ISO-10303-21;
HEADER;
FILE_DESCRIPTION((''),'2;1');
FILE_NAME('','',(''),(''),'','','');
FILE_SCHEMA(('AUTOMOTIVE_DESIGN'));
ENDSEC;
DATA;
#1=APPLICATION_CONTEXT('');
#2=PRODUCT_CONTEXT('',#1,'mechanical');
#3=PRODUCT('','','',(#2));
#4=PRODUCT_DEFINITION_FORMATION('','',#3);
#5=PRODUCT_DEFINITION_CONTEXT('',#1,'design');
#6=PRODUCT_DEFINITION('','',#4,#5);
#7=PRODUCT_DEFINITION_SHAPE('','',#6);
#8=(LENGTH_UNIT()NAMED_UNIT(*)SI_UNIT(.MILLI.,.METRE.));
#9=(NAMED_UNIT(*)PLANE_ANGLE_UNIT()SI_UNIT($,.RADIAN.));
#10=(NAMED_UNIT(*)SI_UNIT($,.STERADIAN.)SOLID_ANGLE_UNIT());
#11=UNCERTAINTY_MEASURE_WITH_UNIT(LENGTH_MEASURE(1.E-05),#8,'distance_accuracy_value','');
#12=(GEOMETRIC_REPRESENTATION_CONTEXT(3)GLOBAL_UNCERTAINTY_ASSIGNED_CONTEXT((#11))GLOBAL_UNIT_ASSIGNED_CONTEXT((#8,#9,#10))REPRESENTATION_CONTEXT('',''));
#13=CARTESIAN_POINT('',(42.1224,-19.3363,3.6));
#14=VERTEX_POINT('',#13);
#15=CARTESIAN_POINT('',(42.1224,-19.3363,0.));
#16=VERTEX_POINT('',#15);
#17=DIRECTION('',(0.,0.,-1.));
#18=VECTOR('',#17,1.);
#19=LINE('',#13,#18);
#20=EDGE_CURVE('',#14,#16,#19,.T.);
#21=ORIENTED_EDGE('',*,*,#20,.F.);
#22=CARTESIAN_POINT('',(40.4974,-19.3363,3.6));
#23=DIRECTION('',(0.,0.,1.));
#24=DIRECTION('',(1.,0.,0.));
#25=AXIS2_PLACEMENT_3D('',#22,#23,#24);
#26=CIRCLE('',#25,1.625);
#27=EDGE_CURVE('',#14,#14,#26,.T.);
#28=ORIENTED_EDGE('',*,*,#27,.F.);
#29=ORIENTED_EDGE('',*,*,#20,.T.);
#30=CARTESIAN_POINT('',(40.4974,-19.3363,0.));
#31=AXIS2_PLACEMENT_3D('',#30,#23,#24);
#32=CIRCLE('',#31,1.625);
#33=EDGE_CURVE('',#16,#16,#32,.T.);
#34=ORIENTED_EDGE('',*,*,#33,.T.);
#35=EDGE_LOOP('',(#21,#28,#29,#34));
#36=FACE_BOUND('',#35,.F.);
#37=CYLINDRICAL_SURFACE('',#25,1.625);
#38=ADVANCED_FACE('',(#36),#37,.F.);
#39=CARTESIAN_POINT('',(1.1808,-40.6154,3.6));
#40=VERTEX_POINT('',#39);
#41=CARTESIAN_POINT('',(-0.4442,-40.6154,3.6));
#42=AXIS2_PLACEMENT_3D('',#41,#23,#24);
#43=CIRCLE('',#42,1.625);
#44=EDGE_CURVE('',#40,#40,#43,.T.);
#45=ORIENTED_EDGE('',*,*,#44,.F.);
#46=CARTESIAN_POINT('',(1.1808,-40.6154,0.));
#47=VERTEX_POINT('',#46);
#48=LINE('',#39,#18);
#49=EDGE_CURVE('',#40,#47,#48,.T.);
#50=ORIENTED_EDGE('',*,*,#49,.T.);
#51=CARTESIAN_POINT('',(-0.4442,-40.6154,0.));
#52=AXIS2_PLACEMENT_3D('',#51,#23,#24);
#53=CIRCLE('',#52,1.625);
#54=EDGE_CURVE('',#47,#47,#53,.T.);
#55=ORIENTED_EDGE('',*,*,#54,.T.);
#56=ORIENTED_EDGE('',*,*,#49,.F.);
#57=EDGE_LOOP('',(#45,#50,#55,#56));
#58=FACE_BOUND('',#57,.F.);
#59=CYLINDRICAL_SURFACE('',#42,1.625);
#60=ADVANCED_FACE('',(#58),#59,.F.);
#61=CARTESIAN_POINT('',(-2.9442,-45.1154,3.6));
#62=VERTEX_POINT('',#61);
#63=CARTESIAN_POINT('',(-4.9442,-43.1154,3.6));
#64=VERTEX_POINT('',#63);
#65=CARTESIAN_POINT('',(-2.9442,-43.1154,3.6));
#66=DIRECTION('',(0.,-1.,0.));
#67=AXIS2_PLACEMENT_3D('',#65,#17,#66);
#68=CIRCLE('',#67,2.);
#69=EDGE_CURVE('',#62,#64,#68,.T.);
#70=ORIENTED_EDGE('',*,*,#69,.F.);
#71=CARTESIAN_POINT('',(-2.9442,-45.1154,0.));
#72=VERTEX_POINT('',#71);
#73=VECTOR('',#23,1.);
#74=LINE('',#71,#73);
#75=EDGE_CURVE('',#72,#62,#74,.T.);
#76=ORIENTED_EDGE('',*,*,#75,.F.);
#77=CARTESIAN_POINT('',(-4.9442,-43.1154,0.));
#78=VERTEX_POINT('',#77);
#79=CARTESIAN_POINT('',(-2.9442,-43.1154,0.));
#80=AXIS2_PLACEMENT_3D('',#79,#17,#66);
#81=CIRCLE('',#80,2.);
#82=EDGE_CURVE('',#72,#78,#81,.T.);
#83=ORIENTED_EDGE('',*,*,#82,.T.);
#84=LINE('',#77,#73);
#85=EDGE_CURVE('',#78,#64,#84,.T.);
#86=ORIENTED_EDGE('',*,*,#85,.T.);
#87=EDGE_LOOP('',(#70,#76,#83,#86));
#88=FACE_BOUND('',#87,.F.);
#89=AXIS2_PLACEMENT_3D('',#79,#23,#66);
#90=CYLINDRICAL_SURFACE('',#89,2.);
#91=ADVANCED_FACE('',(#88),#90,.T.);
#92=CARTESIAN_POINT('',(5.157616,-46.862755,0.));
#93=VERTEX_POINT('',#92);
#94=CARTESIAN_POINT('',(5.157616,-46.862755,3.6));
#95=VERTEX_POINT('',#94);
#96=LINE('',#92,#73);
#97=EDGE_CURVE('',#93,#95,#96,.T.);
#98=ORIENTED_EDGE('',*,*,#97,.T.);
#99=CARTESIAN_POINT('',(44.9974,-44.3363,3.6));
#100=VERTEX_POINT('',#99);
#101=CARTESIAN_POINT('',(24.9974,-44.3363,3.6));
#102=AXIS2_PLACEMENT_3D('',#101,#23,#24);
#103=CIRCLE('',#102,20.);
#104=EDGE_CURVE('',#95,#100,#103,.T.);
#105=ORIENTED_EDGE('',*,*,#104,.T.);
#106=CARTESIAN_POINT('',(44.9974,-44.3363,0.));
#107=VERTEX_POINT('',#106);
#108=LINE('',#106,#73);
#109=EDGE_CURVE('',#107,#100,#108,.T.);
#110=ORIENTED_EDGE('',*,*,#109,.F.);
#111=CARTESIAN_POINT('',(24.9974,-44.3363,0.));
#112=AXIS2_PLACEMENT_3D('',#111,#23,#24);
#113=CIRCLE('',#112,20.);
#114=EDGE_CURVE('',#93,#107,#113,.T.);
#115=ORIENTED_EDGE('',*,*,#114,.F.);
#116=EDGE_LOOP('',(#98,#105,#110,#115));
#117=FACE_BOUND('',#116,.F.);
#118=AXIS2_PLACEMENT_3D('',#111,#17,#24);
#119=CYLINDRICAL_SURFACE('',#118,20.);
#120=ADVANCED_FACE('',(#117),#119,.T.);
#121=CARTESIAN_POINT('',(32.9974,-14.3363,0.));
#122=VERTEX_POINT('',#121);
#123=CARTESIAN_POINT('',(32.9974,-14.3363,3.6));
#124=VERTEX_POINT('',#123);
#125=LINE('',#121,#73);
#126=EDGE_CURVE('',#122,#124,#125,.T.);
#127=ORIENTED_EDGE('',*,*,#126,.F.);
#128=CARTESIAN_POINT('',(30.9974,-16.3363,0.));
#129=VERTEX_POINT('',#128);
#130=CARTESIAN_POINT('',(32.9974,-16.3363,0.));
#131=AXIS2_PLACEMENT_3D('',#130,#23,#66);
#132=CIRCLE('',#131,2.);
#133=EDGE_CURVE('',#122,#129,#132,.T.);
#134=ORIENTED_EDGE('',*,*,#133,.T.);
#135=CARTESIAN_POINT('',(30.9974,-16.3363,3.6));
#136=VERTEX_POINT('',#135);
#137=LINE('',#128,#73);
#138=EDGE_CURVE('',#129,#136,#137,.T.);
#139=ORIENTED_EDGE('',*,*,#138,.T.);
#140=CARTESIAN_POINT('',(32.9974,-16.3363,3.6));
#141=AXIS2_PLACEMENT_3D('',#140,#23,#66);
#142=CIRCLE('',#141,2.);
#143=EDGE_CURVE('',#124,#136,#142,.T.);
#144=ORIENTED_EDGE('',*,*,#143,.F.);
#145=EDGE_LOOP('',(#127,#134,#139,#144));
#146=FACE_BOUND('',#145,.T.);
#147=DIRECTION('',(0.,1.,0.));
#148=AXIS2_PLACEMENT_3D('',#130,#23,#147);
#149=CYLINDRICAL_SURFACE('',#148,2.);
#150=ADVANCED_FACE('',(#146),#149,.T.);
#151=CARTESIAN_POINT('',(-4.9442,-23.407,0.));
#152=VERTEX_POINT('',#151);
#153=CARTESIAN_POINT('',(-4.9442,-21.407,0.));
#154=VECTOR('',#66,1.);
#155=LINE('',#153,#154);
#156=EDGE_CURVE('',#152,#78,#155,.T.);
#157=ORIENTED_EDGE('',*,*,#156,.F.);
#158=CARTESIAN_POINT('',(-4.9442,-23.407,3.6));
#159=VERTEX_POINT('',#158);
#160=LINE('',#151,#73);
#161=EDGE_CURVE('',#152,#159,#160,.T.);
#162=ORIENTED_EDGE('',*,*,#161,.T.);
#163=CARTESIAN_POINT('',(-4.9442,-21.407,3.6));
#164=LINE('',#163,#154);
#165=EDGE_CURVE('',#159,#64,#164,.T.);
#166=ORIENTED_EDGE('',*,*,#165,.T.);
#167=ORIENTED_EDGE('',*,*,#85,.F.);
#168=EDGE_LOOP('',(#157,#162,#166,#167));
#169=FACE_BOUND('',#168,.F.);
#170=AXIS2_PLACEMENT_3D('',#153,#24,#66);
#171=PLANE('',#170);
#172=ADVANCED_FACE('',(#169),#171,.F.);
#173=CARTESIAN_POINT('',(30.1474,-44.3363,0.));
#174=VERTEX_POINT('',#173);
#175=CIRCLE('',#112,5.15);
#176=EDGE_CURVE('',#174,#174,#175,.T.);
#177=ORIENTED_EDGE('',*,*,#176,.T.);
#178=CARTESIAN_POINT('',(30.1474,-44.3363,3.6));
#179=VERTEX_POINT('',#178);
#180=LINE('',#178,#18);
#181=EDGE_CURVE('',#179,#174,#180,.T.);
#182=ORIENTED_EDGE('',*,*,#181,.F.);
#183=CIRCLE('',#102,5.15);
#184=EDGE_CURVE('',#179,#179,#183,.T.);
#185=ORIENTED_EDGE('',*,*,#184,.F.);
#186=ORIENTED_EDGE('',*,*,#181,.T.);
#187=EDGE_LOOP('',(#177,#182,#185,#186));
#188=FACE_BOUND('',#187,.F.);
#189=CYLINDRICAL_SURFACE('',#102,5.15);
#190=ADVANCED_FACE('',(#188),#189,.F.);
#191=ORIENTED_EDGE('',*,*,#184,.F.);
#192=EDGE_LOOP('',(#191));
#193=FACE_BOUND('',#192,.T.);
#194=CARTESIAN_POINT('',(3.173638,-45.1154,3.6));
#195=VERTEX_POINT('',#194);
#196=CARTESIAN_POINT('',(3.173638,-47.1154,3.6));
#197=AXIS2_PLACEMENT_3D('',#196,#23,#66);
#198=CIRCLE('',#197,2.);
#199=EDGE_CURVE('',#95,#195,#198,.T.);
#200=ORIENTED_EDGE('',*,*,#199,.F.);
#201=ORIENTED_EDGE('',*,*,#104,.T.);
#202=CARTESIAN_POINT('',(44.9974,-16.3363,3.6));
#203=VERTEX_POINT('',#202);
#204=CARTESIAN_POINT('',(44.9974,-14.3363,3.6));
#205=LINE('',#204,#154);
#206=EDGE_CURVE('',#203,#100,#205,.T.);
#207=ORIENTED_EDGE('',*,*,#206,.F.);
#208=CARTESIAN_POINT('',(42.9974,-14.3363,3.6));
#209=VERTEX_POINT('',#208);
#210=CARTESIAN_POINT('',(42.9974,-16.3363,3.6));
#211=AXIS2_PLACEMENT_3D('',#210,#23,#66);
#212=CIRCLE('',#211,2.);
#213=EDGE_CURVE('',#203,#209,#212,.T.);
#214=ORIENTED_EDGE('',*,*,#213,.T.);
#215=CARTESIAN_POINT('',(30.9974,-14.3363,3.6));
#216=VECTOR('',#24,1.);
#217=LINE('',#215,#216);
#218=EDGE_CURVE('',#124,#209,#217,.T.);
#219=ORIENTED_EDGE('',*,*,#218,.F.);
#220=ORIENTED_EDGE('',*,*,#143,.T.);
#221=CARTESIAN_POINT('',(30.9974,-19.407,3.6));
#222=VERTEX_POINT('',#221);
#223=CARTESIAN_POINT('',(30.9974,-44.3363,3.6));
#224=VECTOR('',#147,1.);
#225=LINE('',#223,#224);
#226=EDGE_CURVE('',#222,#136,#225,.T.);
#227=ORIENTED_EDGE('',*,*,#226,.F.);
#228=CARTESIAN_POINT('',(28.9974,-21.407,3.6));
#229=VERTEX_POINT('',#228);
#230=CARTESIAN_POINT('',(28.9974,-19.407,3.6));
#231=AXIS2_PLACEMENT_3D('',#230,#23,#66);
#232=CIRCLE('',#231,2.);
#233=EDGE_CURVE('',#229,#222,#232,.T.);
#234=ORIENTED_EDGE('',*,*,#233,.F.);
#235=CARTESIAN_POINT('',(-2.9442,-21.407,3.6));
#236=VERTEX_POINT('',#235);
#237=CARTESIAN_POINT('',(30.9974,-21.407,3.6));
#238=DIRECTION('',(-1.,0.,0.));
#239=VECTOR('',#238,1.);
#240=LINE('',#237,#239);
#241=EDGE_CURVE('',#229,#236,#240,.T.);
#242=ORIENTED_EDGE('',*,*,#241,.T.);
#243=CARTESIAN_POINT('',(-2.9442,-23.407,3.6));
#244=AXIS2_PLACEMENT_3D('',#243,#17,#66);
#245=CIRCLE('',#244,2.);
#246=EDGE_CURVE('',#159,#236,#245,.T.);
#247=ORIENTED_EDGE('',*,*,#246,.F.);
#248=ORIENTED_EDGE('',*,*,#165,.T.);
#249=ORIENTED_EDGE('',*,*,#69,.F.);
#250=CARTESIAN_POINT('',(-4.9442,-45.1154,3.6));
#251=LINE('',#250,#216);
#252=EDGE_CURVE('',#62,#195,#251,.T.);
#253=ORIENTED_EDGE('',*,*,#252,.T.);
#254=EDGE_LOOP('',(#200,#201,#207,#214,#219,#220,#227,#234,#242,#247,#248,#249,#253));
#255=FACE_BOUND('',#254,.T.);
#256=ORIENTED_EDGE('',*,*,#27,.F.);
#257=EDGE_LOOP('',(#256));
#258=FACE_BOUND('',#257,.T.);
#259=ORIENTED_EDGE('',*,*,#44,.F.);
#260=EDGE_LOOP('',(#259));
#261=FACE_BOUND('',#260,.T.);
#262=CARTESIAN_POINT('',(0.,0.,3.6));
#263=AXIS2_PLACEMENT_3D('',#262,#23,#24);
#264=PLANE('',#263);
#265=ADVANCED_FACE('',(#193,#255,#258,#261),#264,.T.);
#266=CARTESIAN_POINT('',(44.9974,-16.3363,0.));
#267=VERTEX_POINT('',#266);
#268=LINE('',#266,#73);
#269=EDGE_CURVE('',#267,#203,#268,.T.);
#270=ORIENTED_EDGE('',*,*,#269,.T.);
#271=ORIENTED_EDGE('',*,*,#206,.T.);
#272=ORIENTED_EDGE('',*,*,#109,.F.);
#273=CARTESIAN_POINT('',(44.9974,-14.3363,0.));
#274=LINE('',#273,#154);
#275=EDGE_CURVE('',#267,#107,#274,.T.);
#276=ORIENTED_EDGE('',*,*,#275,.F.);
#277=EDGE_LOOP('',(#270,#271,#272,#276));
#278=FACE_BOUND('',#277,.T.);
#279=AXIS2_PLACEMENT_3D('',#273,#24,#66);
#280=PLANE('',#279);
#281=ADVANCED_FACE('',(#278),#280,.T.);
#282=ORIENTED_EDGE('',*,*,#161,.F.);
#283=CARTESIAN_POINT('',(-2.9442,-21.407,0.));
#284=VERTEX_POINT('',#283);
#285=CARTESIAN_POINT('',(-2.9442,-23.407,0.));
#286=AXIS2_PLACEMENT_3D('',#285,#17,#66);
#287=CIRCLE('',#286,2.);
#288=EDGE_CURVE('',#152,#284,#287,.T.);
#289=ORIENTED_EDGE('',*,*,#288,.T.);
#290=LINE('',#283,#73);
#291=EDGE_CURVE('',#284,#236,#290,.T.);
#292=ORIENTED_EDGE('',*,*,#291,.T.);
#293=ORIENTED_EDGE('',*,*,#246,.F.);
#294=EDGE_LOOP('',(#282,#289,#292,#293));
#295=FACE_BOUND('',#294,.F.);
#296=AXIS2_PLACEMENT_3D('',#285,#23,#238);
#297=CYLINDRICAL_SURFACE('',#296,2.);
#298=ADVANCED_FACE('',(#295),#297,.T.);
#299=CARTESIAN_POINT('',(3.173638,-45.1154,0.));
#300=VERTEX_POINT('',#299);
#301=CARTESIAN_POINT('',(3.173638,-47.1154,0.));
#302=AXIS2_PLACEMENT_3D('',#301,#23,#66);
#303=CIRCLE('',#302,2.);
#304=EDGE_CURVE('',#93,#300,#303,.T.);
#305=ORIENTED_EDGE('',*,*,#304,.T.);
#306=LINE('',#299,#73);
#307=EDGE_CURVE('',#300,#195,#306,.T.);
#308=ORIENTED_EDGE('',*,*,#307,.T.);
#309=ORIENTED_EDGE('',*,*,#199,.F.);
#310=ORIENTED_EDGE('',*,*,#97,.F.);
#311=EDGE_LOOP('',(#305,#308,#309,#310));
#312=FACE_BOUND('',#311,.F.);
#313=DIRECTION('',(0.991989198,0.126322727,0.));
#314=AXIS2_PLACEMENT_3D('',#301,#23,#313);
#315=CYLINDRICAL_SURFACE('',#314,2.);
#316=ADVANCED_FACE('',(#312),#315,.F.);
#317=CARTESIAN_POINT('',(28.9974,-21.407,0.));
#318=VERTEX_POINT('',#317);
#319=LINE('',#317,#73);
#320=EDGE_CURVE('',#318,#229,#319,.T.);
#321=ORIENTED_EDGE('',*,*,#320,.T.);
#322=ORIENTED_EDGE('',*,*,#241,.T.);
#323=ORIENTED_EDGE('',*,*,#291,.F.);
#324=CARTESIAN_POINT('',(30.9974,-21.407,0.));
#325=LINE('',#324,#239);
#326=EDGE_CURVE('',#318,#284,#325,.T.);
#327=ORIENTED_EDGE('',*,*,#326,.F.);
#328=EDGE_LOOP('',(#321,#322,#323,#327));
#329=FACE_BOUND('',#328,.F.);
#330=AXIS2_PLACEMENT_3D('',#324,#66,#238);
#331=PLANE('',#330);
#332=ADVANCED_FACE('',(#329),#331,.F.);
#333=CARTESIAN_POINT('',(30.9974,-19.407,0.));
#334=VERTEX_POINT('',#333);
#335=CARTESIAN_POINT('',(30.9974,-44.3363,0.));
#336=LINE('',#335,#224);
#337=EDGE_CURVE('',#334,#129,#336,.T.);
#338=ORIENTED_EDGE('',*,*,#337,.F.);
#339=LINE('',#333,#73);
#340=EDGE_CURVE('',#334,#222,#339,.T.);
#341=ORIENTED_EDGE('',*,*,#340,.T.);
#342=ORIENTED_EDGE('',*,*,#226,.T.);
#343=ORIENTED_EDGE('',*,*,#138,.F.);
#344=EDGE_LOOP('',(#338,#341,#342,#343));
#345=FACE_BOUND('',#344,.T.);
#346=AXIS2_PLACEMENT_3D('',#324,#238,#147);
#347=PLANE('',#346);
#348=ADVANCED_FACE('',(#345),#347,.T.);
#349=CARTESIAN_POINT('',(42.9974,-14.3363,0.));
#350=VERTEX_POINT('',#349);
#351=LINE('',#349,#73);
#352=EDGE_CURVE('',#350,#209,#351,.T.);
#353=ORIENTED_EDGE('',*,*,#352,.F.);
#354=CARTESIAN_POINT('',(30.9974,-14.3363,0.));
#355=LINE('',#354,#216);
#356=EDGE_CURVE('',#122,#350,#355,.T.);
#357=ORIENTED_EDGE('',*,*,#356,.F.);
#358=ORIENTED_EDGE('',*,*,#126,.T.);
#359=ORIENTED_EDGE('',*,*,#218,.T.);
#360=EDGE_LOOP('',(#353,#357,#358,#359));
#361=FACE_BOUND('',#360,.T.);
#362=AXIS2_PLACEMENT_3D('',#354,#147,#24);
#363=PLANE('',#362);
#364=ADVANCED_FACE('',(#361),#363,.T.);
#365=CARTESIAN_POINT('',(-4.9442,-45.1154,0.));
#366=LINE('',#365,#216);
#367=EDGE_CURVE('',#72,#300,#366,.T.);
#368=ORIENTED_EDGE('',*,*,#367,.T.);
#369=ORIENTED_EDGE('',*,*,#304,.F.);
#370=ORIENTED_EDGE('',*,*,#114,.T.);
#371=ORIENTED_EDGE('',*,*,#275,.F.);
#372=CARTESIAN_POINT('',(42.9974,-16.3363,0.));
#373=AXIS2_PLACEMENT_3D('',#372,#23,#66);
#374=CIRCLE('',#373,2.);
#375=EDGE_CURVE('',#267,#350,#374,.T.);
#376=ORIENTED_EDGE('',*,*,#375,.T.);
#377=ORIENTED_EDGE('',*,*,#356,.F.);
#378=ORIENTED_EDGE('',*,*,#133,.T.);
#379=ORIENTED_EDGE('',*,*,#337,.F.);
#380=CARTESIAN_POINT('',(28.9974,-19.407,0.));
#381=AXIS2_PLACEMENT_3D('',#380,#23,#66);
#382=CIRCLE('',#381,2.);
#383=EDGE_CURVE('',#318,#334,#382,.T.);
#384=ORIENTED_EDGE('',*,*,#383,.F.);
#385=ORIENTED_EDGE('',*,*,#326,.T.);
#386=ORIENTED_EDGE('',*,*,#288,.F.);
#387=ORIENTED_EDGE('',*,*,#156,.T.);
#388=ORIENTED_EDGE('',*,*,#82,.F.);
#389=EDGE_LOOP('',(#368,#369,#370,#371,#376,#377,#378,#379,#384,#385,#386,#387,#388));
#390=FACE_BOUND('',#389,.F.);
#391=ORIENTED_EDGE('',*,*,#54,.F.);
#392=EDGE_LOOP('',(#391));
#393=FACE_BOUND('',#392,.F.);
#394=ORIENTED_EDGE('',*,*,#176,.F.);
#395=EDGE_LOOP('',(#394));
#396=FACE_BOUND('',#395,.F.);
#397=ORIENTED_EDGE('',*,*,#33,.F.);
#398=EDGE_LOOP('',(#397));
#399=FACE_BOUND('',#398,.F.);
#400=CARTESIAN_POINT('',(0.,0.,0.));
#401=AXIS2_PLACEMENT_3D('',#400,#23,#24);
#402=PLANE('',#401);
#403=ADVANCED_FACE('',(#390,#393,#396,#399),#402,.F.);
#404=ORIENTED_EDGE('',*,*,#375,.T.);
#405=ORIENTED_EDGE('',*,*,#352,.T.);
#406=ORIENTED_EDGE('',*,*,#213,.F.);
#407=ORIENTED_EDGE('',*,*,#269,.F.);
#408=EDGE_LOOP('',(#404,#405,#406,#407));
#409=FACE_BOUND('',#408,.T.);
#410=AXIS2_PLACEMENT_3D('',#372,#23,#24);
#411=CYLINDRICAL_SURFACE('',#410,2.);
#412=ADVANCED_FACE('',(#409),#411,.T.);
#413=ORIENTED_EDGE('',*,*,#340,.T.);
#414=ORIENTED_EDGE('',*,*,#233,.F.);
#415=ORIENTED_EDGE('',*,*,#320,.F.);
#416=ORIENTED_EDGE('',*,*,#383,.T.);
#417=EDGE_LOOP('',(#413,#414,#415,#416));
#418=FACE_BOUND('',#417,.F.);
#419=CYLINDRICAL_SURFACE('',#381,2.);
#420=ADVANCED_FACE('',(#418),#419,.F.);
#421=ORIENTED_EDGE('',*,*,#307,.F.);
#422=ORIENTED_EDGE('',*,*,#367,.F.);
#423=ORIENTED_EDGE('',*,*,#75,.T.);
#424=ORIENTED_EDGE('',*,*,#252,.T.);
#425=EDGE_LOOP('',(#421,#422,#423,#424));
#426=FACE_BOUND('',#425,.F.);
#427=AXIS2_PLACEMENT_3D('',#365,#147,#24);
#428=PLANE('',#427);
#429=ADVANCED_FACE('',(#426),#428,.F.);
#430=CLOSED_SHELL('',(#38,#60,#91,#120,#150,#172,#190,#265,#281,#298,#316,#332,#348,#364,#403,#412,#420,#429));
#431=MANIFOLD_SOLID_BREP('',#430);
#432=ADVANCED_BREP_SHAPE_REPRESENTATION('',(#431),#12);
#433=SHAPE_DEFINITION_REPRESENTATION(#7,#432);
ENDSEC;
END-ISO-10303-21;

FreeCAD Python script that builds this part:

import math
import FreeCAD as App
import Part
import Sketcher
Q = App.Units.Quantity


def edges_at(feature, points):
    """Names of the edges that pass closest to the given points."""
    edges = feature.Shape.Edges
    near = lambda p: min(range(len(edges)), key=lambda i: edges[i].distToShape(Part.Vertex(*p))[0])
    return sorted({f"Edge{near(p) + 1}" for p in points})

doc = App.newDocument("Part")
params = doc.addObject("Spreadsheet::Sheet", "Params")
for row, (alias, value) in enumerate([
    ("sketch1_radius", "20 mm"),
    ("sketch1_width", "14 mm"),
    ("sketch1_height", "30 mm"),
    ("pad1_length", "3.6 mm"),
    ("sketch2_diameter", "10.3 mm"),
    ("sketch2_diameter2", "3.25 mm"),
    ("pocket1_length", "20 mm"),
    ("fillet_radius", "2 mm"),
], start=1):
    params.set(f"A{row}", alias)
    params.set(f"B{row}", "=" + value)
    params.setAlias(f"B{row}", alias)

body = doc.addObject("PartDesign::Body", "Body")

sketch1 = body.newObject("Sketcher::SketchObject", "Sketch")
sketch1.AttachmentSupport = (doc.getObject("XY_Plane"), [""])
sketch1.MapMode = "FlatFace"
sketch1.addGeometry(Part.ArcOfCircle(Part.Circle(App.Vector(25, -44, 0), App.Vector(0, 0, 1), 20), math.radians(-178), math.radians(0)), False)
sketch1.addGeometry(Part.LineSegment(App.Vector(45, -44, 0), App.Vector(45, -14, 0)), False)
sketch1.addGeometry(Part.LineSegment(App.Vector(45, -14, 0), App.Vector(31, -14, 0)), False)
sketch1.addGeometry(Part.LineSegment(App.Vector(31, -14, 0), App.Vector(31, -21, 0)), False)
sketch1.addGeometry(Part.LineSegment(App.Vector(31, -21, 0), App.Vector(-5, -21, 0)), False)
sketch1.addGeometry(Part.LineSegment(App.Vector(-5, -21, 0), App.Vector(-5, -45, 0)), False)
sketch1.addGeometry(Part.LineSegment(App.Vector(-5, -45, 0), App.Vector(5, -45, 0)), False)
sketch1.addConstraint(Sketcher.Constraint("Tangent", 0, 2, 1, 1))
sketch1.addConstraint(Sketcher.Constraint("Coincident", 1, 2, 2, 1))
sketch1.addConstraint(Sketcher.Constraint("Coincident", 2, 2, 3, 1))
sketch1.addConstraint(Sketcher.Constraint("Coincident", 3, 2, 4, 1))
sketch1.addConstraint(Sketcher.Constraint("Coincident", 4, 2, 5, 1))
sketch1.addConstraint(Sketcher.Constraint("Coincident", 5, 2, 6, 1))
sketch1.addConstraint(Sketcher.Constraint("Coincident", 6, 2, 0, 1))
sketch1.addConstraint(Sketcher.Constraint("Vertical", 1))
sketch1.addConstraint(Sketcher.Constraint("Horizontal", 2))
sketch1.addConstraint(Sketcher.Constraint("Vertical", 3))
sketch1.addConstraint(Sketcher.Constraint("Horizontal", 4))
sketch1.addConstraint(Sketcher.Constraint("Vertical", 5))
sketch1.addConstraint(Sketcher.Constraint("Horizontal", 6))
sketch1.addConstraint(Sketcher.Constraint("Radius", 0, Q("20 mm")))
sketch1.addConstraint(Sketcher.Constraint("DistanceX", 2, 2, 2, 1, Q("14 mm")))
sketch1.addConstraint(Sketcher.Constraint("DistanceY", 1, 1, 1, 2, Q("30 mm")))
sketch1.addConstraint(Sketcher.Constraint("DistanceX", 4, 2, 4, 1, Q("35.9416 mm")))
sketch1.addConstraint(Sketcher.Constraint("DistanceX", 6, 1, 6, 2, Q("9.9568 mm")))
sketch1.addConstraint(Sketcher.Constraint("DistanceY", 3, 2, 3, 1, Q("7.0707 mm")))
sketch1.addConstraint(Sketcher.Constraint("DistanceY", 3, 2, -1, 1, Q("21.407 mm")))
sketch1.addConstraint(Sketcher.Constraint("DistanceX", -1, 1, 0, 3, Q("24.9974 mm")))
sketch1.setExpression("Constraints[13]", "Params.sketch1_radius")
sketch1.setExpression("Constraints[14]", "Params.sketch1_width")
sketch1.setExpression("Constraints[15]", "Params.sketch1_height")
pad1 = body.newObject("PartDesign::Pad", "Pad")
pad1.Profile = sketch1
pad1.setExpression("Length", "Params.pad1_length")

sketch2 = body.newObject("Sketcher::SketchObject", "Sketch001")
sketch2.AttachmentSupport = (doc.getObject("XY_Plane"), [""])
sketch2.MapMode = "FlatFace"
sketch2.AttachmentOffset = App.Placement(App.Vector(0, 0, 3.6), App.Rotation())
sketch2.addGeometry(Part.Circle(App.Vector(25, -44.3, 0), App.Vector(0, 0, 1), 5.2), False)
sketch2.addGeometry(Part.Circle(App.Vector(-0.4, -40.6, 0), App.Vector(0, 0, 1), 1.6), False)
sketch2.addGeometry(Part.Circle(App.Vector(40.5, -19.3, 0), App.Vector(0, 0, 1), 1.6), False)
sketch2.addConstraint(Sketcher.Constraint("Equal", 1, 2))
sketch2.addConstraint(Sketcher.Constraint("Diameter", 0, Q("10.3 mm")))
sketch2.addConstraint(Sketcher.Constraint("Diameter", 1, Q("3.25 mm")))
sketch2.addConstraint(Sketcher.Constraint("DistanceY", 0, 3, 2, 3, Q("25 mm")))
sketch2.addConstraint(Sketcher.Constraint("DistanceX", 0, 3, 2, 3, Q("15.5 mm")))
sketch2.addConstraint(Sketcher.Constraint("DistanceY", 0, 3, 1, 3, Q("3.721 mm")))
sketch2.addConstraint(Sketcher.Constraint("DistanceX", -1, 1, 0, 3, Q("24.9974 mm")))
sketch2.addConstraint(Sketcher.Constraint("DistanceY", 0, 3, -1, 1, Q("44.3363 mm")))
sketch2.addConstraint(Sketcher.Constraint("DistanceX", 1, 3, -1, 1, Q("0.4442 mm")))
sketch2.setExpression("Constraints[1]", "Params.sketch2_diameter")
sketch2.setExpression("Constraints[2]", "Params.sketch2_diameter2")
pocket1 = body.newObject("PartDesign::Pocket", "Pocket")
pocket1.Profile = sketch2
pocket1.setExpression("Length", "Params.pocket1_length")
doc.recompute()

fillet = body.newObject("PartDesign::Fillet", "Fillet")
fillet.Base = (pocket1, edges_at(pocket1, [
    (44.997, -14.336, 1.8),
    (-4.944, -45.115, 1.8),
    (30.997, -14.336, 1.8),
    (-4.944, -21.407, 1.8),
    (30.997, -21.407, 1.8),
    (5.013, -45.115, 1.8),
]))
fillet.setExpression("Radius", "Params.fillet_radius")

doc.recompute()
